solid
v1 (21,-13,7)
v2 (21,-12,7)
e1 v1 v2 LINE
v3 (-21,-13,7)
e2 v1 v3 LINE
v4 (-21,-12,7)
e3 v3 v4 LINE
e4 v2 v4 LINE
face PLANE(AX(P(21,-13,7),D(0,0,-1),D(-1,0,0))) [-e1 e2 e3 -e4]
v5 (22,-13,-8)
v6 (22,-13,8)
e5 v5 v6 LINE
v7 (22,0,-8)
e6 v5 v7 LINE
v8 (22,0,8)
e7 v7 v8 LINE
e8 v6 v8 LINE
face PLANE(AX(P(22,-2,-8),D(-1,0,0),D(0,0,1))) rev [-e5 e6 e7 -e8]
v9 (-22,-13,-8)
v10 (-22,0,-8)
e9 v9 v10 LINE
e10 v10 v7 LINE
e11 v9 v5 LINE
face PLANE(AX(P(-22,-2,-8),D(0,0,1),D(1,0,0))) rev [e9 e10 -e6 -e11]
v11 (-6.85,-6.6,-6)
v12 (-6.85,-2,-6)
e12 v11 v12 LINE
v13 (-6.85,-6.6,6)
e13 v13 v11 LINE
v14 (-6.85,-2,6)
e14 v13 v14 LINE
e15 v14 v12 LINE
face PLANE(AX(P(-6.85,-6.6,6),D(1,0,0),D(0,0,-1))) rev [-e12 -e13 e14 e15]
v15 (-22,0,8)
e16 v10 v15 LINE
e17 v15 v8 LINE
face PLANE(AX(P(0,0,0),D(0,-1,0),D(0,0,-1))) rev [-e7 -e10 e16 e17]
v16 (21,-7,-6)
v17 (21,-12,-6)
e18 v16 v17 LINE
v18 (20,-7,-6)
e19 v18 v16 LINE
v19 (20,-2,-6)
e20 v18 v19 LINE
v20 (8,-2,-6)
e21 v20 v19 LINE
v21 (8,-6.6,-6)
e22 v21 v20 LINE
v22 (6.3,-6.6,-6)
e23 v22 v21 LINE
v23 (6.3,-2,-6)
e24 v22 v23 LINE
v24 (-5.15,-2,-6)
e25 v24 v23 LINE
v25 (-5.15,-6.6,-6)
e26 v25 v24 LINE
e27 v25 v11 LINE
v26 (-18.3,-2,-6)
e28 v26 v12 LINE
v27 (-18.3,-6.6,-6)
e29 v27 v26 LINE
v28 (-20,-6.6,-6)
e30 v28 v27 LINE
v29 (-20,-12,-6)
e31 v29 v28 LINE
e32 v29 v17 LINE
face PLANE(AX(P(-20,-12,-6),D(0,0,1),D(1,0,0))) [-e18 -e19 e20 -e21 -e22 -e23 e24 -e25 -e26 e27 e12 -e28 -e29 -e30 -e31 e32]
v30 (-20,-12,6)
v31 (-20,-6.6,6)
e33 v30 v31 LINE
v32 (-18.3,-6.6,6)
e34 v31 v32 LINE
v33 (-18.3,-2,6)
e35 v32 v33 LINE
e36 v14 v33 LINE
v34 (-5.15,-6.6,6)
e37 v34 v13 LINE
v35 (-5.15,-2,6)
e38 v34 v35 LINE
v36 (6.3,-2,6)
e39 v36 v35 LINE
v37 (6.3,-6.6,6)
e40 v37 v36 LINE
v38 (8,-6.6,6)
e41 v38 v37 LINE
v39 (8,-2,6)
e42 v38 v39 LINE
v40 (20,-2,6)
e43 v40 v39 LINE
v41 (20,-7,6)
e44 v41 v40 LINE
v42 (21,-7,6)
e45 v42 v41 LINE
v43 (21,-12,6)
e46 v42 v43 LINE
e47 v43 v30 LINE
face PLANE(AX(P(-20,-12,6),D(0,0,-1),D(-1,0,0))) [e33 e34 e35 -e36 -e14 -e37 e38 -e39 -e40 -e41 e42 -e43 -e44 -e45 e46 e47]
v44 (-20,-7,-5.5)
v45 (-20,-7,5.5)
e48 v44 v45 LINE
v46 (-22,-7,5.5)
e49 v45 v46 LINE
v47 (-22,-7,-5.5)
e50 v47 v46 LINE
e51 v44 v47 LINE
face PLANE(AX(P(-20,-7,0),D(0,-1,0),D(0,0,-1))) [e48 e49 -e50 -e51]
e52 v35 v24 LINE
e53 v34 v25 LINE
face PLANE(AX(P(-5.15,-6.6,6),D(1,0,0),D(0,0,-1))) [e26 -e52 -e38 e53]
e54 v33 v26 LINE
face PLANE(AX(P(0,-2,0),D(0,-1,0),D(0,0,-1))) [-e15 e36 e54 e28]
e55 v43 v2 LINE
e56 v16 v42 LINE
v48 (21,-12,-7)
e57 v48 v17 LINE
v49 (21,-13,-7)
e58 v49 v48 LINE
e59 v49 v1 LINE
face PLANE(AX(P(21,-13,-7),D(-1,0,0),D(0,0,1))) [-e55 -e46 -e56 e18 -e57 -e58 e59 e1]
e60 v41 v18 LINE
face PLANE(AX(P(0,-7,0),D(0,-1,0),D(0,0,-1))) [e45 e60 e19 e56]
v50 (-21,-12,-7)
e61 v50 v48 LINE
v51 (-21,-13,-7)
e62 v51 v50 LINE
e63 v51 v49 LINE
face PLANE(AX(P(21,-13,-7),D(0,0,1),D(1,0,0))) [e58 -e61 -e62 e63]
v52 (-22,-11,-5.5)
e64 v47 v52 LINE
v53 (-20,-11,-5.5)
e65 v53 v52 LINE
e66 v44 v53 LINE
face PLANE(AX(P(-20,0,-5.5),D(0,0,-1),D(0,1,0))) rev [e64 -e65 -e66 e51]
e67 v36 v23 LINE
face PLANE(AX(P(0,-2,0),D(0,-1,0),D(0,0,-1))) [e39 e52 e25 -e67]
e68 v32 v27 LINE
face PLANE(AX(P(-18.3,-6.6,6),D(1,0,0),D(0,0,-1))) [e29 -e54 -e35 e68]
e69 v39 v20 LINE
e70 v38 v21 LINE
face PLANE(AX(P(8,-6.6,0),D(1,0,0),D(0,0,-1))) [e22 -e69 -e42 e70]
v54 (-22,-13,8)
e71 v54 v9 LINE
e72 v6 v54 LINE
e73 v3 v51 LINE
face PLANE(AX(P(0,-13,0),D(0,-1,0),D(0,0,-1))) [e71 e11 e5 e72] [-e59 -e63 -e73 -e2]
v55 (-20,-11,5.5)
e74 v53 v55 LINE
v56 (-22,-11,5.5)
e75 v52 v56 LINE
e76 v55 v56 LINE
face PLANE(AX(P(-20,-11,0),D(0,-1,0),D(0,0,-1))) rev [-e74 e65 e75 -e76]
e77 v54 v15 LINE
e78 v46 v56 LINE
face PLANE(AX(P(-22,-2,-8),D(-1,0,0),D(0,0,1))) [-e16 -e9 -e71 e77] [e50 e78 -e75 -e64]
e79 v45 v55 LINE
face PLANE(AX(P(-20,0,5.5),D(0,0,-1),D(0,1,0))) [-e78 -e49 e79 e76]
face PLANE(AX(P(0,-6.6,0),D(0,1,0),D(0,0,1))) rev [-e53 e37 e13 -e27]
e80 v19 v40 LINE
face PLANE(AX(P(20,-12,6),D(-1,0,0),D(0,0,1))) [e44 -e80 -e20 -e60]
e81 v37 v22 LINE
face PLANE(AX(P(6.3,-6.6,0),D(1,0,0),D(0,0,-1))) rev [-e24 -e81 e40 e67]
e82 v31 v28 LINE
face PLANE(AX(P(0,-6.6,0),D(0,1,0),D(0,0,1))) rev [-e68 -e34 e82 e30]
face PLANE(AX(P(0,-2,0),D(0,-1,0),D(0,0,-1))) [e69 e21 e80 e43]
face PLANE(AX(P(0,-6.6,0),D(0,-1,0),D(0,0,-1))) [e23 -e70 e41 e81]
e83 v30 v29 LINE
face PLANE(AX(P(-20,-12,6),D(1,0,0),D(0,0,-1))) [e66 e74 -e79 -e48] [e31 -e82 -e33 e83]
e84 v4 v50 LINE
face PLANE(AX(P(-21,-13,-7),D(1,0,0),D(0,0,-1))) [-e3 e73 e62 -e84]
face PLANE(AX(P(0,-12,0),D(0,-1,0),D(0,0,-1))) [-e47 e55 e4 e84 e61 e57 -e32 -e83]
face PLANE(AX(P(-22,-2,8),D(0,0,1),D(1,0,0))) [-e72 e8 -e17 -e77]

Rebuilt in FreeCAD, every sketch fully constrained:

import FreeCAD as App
import Part
import Sketcher
Q = App.Units.Quantity


def add_polygon(sketch, points):
    """Adds a closed chain of lines whose ends are joined by coincident constraints."""
    first, n = sketch.GeometryCount, len(points)
    for a, b in zip(points, points[1:] + points[:1]):
        sketch.addGeometry(Part.LineSegment(App.Vector(*a, 0), App.Vector(*b, 0)), False)
    for i in range(n):
        sketch.addConstraint(Sketcher.Constraint("Coincident", first + i, 2, first + (i + 1) % n, 1))

doc = App.newDocument("Part")
params = doc.addObject("Spreadsheet::Sheet", "Params")
for row, (alias, value) in enumerate([
    ("sketch1_width", "44 mm"),
    ("sketch1_height", "16 mm"),
    ("pad1_length", "2 mm"),
    ("sketch2_width", "44 mm"),
    ("sketch2_width2", "40 mm"),
    ("sketch2_height", "16 mm"),
    ("sketch2_height2", "12 mm"),
    ("pad2_length", "10 mm"),
    ("sketch3_width", "4 mm"),
    ("sketch3_height", "11 mm"),
    ("pocket1_length", "2 mm"),
    ("sketch4_height", "12 mm"),
    ("sketch4_width", "1.7 mm"),
    ("pad3_length", "4.6 mm"),
    ("sketch5_width", "44 mm"),
    ("sketch5_width2", "42 mm"),
    ("sketch5_height", "16 mm"),
    ("sketch5_height2", "14 mm"),
    ("pad4_length", "1 mm"),
    ("sketch6_width", "1 mm"),
    ("sketch6_height", "12 mm"),
    ("pocket2_length", "5 mm"),
], start=1):
    params.set(f"A{row}", alias)
    params.set(f"B{row}", "=" + value)
    params.setAlias(f"B{row}", alias)

body = doc.addObject("PartDesign::Body", "Body")

# Sketch on XZ plane
sketch1 = doc.addObject("Sketcher::SketchObject", "Sketch")
body.addObject(sketch1)
sketch1.AttachmentSupport = (doc.XZ_Plane, [""])
sketch1.MapMode = "FlatFace"
add_polygon(sketch1, [(-22, -8), (-22, 8), (22, 8), (22, -8)])  # lines 0-3
sketch1.addConstraint(Sketcher.Constraint("Vertical", 0))
sketch1.addConstraint(Sketcher.Constraint("Horizontal", 1))
sketch1.addConstraint(Sketcher.Constraint("Vertical", 2))
sketch1.addConstraint(Sketcher.Constraint("Horizontal", 3))
sketch1.addConstraint(Sketcher.Constraint("Symmetric", 0, 2, 2, 2, -1, 1))
sketch1.addConstraint(Sketcher.Constraint("DistanceX", 1, 1, 1, 2, Q("44 mm")))
sketch1.addConstraint(Sketcher.Constraint("DistanceY", 0, 1, 0, 2, Q("16 mm")))
sketch1.setExpression("Constraints[9]", "Params.sketch1_width")
sketch1.setExpression("Constraints[10]", "Params.sketch1_height")
pad1 = doc.addObject("PartDesign::Pad", "Pad")
body.addObject(pad1)
pad1.Profile = sketch1
pad1.setExpression("Length", "Params.pad1_length")

# Sketch on XZ plane
sketch2 = doc.addObject("Sketcher::SketchObject", "Sketch001")
body.addObject(sketch2)
sketch2.AttachmentSupport = (doc.XZ_Plane, [""])
sketch2.MapMode = "FlatFace"
sketch2.AttachmentOffset = App.Placement(App.Vector(0, 0, 2), App.Rotation())
add_polygon(sketch2, [(-22, 8), (-22, -8), (22, -8), (22, 8)])  # lines 0-3
add_polygon(sketch2, [(20, -6), (-20, -6), (-20, 6), (20, 6)])  # lines 4-7
sketch2.addConstraint(Sketcher.Constraint("Vertical", 0))
sketch2.addConstraint(Sketcher.Constraint("Horizontal", 1))
sketch2.addConstraint(Sketcher.Constraint("Vertical", 2))
sketch2.addConstraint(Sketcher.Constraint("Horizontal", 3))
sketch2.addConstraint(Sketcher.Constraint("Horizontal", 4))
sketch2.addConstraint(Sketcher.Constraint("Vertical", 5))
sketch2.addConstraint(Sketcher.Constraint("Horizontal", 6))
sketch2.addConstraint(Sketcher.Constraint("Vertical", 7))
sketch2.addConstraint(Sketcher.Constraint("Symmetric", 0, 2, 2, 2, -1, 1))
sketch2.addConstraint(Sketcher.Constraint("Symmetric", 4, 2, 6, 2, -1, 1))
sketch2.addConstraint(Sketcher.Constraint("DistanceX", 1, 1, 1, 2, Q("44 mm")))
sketch2.addConstraint(Sketcher.Constraint("DistanceX", 4, 2, 4, 1, Q("40 mm")))
sketch2.addConstraint(Sketcher.Constraint("DistanceY", 0, 2, 0, 1, Q("16 mm")))
sketch2.addConstraint(Sketcher.Constraint("DistanceY", 5, 1, 5, 2, Q("12 mm")))
sketch2.setExpression("Constraints[18]", "Params.sketch2_width")
sketch2.setExpression("Constraints[19]", "Params.sketch2_width2")
sketch2.setExpression("Constraints[20]", "Params.sketch2_height")
sketch2.setExpression("Constraints[21]", "Params.sketch2_height2")
pad2 = doc.addObject("PartDesign::Pad", "Pad001")
body.addObject(pad2)
pad2.Profile = sketch2
pad2.setExpression("Length", "Params.pad2_length")

# Sketch on YZ plane
sketch3 = doc.addObject("Sketcher::SketchObject", "Sketch002")
body.addObject(sketch3)
sketch3.AttachmentSupport = (doc.YZ_Plane, [""])
sketch3.MapMode = "FlatFace"
sketch3.AttachmentOffset = App.Placement(App.Vector(0, 0, -22), App.Rotation())
add_polygon(sketch3, [(-11, 5.5), (-7, 5.5), (-7, -5.5), (-11, -5.5)])  # lines 0-3
sketch3.addConstraint(Sketcher.Constraint("Horizontal", 0))
sketch3.addConstraint(Sketcher.Constraint("Vertical", 1))
sketch3.addConstraint(Sketcher.Constraint("Horizontal", 2))
sketch3.addConstraint(Sketcher.Constraint("Vertical", 3))
sketch3.addConstraint(Sketcher.Constraint("DistanceX", 0, 1, 0, 2, Q("4 mm")))
sketch3.addConstraint(Sketcher.Constraint("DistanceY", 1, 2, 1, 1, Q("11 mm")))
sketch3.addConstraint(Sketcher.Constraint("DistanceX", 0, 2, -1, 1, Q("7 mm")))
sketch3.addConstraint(Sketcher.Constraint("DistanceY", -1, 1, 0, 2, Q("5.5 mm")))
sketch3.setExpression("Constraints[8]", "Params.sketch3_width")
sketch3.setExpression("Constraints[9]", "Params.sketch3_height")
pocket1 = doc.addObject("PartDesign::Pocket", "Pocket")
body.addObject(pocket1)
pocket1.Profile = sketch3
pocket1.setExpression("Length", "Params.pocket1_length")
pocket1.Reversed = True

# Sketch on XZ plane
sketch4 = doc.addObject("Sketcher::SketchObject", "Sketch003")
body.addObject(sketch4)
sketch4.AttachmentSupport = (doc.XZ_Plane, [""])
sketch4.MapMode = "FlatFace"
sketch4.AttachmentOffset = App.Placement(App.Vector(0, 0, 2), App.Rotation())
add_polygon(sketch4, [(6.3, 6), (6.3, -6), (8, -6), (8, 6)])  # lines 0-3
add_polygon(sketch4, [(-20, 6), (-20, -6), (-18.3, -6), (-18.3, 6)])  # lines 4-7
add_polygon(sketch4, [(-6.8, 6), (-6.8, -6), (-5.2, -6), (-5.2, 6)])  # lines 8-11
sketch4.addConstraint(Sketcher.Constraint("Vertical", 0))
sketch4.addConstraint(Sketcher.Constraint("Horizontal", 1))
sketch4.addConstraint(Sketcher.Constraint("Vertical", 2))
sketch4.addConstraint(Sketcher.Constraint("Horizontal", 3))
sketch4.addConstraint(Sketcher.Constraint("Vertical", 4))
sketch4.addConstraint(Sketcher.Constraint("Horizontal", 5))
sketch4.addConstraint(Sketcher.Constraint("Vertical", 6))
sketch4.addConstraint(Sketcher.Constraint("Horizontal", 7))
sketch4.addConstraint(Sketcher.Constraint("Vertical", 8))
sketch4.addConstraint(Sketcher.Constraint("Horizontal", 9))
sketch4.addConstraint(Sketcher.Constraint("Vertical", 10))
sketch4.addConstraint(Sketcher.Constraint("Horizontal", 11))
sketch4.addConstraint(Sketcher.Constraint("Horizontal", 1, 2, 4, 2))
sketch4.addConstraint(Sketcher.Constraint("Horizontal", 3, 2, 6, 2))
sketch4.addConstraint(Sketcher.Constraint("Horizontal", 5, 2, 8, 2))
sketch4.addConstraint(Sketcher.Constraint("Horizontal", 7, 2, 10, 2))
sketch4.addConstraint(Sketcher.Constraint("Equal", 3, 5))
sketch4.addConstraint(Sketcher.Constraint("Equal", 7, 9))
sketch4.addConstraint(Sketcher.Constraint("DistanceY", 0, 2, 0, 1, Q("12 mm")))
sketch4.addConstraint(Sketcher.Constraint("DistanceX", 1, 1, 1, 2, Q("1.7 mm")))
sketch4.addConstraint(Sketcher.Constraint("DistanceY", 0, 2, -1, 1, Q("6 mm")))
sketch4.addConstraint(Sketcher.Constraint("DistanceX", -1, 1, 1, 2, Q("8 mm")))
sketch4.addConstraint(Sketcher.Constraint("DistanceX", 4, 2, -1, 1, Q("20 mm")))
sketch4.addConstraint(Sketcher.Constraint("DistanceX", 8, 2, -1, 1, Q("6.85 mm")))
sketch4.setExpression("Constraints[30]", "Params.sketch4_height")
sketch4.setExpression("Constraints[31]", "Params.sketch4_width")
pad3 = doc.addObject("PartDesign::Pad", "Pad002")
body.addObject(pad3)
pad3.Profile = sketch4
pad3.setExpression("Length", "Params.pad3_length")

# Sketch on XZ plane
sketch5 = doc.addObject("Sketcher::SketchObject", "Sketch004")
body.addObject(sketch5)
sketch5.AttachmentSupport = (doc.XZ_Plane, [""])
sketch5.MapMode = "FlatFace"
sketch5.AttachmentOffset = App.Placement(App.Vector(0, 0, 12), App.Rotation())
add_polygon(sketch5, [(-22, 8), (-22, -8), (22, -8), (22, 8)])  # lines 0-3
add_polygon(sketch5, [(21, -7), (-21, -7), (-21, 7), (21, 7)])  # lines 4-7
sketch5.addConstraint(Sketcher.Constraint("Vertical", 0))
sketch5.addConstraint(Sketcher.Constraint("Horizontal", 1))
sketch5.addConstraint(Sketcher.Constraint("Vertical", 2))
sketch5.addConstraint(Sketcher.Constraint("Horizontal", 3))
sketch5.addConstraint(Sketcher.Constraint("Horizontal", 4))
sketch5.addConstraint(Sketcher.Constraint("Vertical", 5))
sketch5.addConstraint(Sketcher.Constraint("Horizontal", 6))
sketch5.addConstraint(Sketcher.Constraint("Vertical", 7))
sketch5.addConstraint(Sketcher.Constraint("Symmetric", 0, 2, 2, 2, -1, 1))
sketch5.addConstraint(Sketcher.Constraint("Symmetric", 4, 2, 6, 2, -1, 1))
sketch5.addConstraint(Sketcher.Constraint("DistanceX", 1, 1, 1, 2, Q("44 mm")))
sketch5.addConstraint(Sketcher.Constraint("DistanceX", 4, 2, 4, 1, Q("42 mm")))
sketch5.addConstraint(Sketcher.Constraint("DistanceY", 0, 2, 0, 1, Q("16 mm")))
sketch5.addConstraint(Sketcher.Constraint("DistanceY", 5, 1, 5, 2, Q("14 mm")))
sketch5.setExpression("Constraints[18]", "Params.sketch5_width")
sketch5.setExpression("Constraints[19]", "Params.sketch5_width2")
sketch5.setExpression("Constraints[20]", "Params.sketch5_height")
sketch5.setExpression("Constraints[21]", "Params.sketch5_height2")
pad4 = doc.addObject("PartDesign::Pad", "Pad003")
body.addObject(pad4)
pad4.Profile = sketch5
pad4.setExpression("Length", "Params.pad4_length")

# Sketch on XZ plane
sketch6 = doc.addObject("Sketcher::SketchObject", "Sketch005")
body.addObject(sketch6)
sketch6.AttachmentSupport = (doc.XZ_Plane, [""])
sketch6.MapMode = "FlatFace"
sketch6.AttachmentOffset = App.Placement(App.Vector(0, 0, 12), App.Rotation())
add_polygon(sketch6, [(20, 6), (20, -6), (21, -6), (21, 6)])  # lines 0-3
sketch6.addConstraint(Sketcher.Constraint("Vertical", 0))
sketch6.addConstraint(Sketcher.Constraint("Horizontal", 1))
sketch6.addConstraint(Sketcher.Constraint("Vertical", 2))
sketch6.addConstraint(Sketcher.Constraint("Horizontal", 3))
sketch6.addConstraint(Sketcher.Constraint("DistanceX", 1, 1, 1, 2, Q("1 mm")))
sketch6.addConstraint(Sketcher.Constraint("DistanceY", 0, 2, 0, 1, Q("12 mm")))
sketch6.addConstraint(Sketcher.Constraint("DistanceX", -1, 1, 0, 2, Q("20 mm")))
sketch6.addConstraint(Sketcher.Constraint("DistanceY", 0, 2, -1, 1, Q("6 mm")))
sketch6.setExpression("Constraints[8]", "Params.sketch6_width")
sketch6.setExpression("Constraints[9]", "Params.sketch6_height")
pocket2 = doc.addObject("PartDesign::Pocket", "Pocket001")
body.addObject(pocket2)
pocket2.Profile = sketch6
pocket2.setExpression("Length", "Params.pocket2_length")

doc.recompute()
